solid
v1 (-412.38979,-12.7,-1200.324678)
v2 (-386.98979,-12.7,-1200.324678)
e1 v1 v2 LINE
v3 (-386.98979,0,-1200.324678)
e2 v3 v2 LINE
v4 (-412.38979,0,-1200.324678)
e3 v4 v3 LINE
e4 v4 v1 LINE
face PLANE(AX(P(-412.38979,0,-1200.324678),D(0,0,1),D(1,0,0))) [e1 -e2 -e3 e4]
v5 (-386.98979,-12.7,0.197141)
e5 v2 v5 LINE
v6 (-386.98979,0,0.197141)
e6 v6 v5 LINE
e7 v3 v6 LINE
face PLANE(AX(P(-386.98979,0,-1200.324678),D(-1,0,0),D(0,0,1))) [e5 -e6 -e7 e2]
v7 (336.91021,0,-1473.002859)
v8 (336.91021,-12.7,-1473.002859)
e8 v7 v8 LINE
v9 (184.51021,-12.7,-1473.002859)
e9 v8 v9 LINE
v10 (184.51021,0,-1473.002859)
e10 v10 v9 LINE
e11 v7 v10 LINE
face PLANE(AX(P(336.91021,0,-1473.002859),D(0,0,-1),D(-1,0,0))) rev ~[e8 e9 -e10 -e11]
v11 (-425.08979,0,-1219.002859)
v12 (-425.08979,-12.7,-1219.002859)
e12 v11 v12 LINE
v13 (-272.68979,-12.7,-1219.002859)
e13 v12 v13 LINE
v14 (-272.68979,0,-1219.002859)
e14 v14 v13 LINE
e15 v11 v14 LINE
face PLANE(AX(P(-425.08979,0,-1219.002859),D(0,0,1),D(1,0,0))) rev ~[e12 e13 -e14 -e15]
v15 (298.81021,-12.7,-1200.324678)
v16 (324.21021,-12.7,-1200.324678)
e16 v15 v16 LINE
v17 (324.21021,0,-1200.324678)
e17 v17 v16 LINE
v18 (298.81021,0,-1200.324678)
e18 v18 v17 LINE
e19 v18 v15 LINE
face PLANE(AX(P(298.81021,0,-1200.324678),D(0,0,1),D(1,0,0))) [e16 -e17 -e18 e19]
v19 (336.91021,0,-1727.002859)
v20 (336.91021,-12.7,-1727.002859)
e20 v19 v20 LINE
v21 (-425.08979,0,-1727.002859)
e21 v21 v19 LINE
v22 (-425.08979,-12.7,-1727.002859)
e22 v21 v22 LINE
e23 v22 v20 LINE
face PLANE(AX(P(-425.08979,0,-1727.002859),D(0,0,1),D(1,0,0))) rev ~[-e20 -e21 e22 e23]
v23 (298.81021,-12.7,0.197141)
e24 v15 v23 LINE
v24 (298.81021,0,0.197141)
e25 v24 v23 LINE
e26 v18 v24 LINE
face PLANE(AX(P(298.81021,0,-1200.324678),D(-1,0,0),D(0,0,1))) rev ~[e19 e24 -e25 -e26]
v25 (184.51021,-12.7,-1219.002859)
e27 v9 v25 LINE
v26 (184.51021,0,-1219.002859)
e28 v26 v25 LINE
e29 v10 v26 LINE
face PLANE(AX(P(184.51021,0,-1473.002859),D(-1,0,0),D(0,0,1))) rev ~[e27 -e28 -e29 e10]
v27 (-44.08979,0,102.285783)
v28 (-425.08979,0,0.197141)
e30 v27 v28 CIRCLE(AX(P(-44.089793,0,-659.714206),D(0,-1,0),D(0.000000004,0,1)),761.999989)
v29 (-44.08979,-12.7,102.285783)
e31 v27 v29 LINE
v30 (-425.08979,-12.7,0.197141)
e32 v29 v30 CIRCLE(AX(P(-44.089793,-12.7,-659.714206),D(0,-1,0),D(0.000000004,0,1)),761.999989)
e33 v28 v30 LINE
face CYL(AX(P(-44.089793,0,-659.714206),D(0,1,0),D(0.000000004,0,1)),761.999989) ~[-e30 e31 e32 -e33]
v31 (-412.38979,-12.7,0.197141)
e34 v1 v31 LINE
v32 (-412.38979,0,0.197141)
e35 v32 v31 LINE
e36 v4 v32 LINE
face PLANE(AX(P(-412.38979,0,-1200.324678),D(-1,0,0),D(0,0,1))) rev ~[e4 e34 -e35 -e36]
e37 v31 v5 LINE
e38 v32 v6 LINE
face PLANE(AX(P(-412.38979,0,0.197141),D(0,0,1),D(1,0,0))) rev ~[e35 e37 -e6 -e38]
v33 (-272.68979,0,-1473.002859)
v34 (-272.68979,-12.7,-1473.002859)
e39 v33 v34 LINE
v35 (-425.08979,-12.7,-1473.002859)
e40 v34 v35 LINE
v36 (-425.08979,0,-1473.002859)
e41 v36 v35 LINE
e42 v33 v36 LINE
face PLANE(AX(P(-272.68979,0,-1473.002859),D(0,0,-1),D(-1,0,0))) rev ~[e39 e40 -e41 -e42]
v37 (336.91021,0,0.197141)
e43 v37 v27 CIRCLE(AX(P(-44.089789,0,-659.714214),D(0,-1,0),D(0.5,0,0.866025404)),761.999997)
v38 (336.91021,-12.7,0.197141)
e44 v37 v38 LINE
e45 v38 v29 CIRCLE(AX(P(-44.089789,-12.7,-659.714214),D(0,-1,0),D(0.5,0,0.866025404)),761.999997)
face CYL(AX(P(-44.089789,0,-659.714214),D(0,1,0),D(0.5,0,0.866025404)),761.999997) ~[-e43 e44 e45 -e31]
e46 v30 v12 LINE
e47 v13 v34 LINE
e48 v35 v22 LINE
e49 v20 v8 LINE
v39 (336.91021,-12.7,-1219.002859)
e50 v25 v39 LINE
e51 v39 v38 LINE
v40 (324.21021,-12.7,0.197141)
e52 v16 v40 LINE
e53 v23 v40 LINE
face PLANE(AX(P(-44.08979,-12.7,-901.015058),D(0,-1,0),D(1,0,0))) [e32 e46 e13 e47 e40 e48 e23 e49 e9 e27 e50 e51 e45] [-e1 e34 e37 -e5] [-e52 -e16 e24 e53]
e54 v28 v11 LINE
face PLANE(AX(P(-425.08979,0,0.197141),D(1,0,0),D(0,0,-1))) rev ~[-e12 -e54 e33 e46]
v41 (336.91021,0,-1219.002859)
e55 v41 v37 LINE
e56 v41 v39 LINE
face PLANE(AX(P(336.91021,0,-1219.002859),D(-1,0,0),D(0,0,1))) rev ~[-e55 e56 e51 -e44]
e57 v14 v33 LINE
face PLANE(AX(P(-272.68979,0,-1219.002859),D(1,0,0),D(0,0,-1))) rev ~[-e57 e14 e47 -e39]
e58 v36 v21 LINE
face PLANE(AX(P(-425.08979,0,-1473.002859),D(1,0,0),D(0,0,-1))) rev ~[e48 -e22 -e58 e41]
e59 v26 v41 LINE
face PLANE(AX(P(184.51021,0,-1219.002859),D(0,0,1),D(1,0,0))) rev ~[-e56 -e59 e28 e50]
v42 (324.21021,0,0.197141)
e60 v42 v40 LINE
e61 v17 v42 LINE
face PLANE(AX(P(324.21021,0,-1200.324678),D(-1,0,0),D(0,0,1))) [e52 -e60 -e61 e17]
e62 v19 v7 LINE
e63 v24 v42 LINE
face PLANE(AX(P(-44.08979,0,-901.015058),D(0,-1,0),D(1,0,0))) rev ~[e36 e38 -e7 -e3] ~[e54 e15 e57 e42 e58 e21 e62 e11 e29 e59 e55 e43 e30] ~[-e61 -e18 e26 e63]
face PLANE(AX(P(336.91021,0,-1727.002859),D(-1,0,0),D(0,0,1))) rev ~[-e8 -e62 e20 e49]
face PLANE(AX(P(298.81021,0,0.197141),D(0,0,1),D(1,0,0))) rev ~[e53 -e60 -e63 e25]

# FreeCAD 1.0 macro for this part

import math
import FreeCAD as App
import Part
import Sketcher
from FreeCAD import Vector
Q = App.Units.Quantity

doc = App.newDocument("Part")
body = doc.addObject("PartDesign::Body", "Body")

# Sketch on XZ plane
sketch1 = body.newObject("Sketcher::SketchObject", "Sketch")
sketch1.AttachmentSupport = (doc.getObject("XZ_Plane"), [""])
sketch1.MapMode = "FlatFace"
sketch1.addGeometry([
    Part.LineSegment(Vector(337, -1219, 0), Vector(337, 0, 0)),  # 0
    Part.ArcOfCircle(Part.Circle(Vector(-44, -660, 0), Vector(0, 0, 1), 762), math.radians(60), math.radians(90)),  # 1
    Part.ArcOfCircle(Part.Circle(Vector(-44, -660, 0), Vector(0, 0, 1), 762), math.radians(90), math.radians(120)),  # 2
    Part.LineSegment(Vector(-425, 0, 0), Vector(-425, -1219, 0)),  # 3
    Part.LineSegment(Vector(-425, -1219, 0), Vector(-273, -1219, 0)),  # 4
    Part.LineSegment(Vector(-273, -1219, 0), Vector(-273, -1473, 0)),  # 5
    Part.LineSegment(Vector(-273, -1473, 0), Vector(-425, -1473, 0)),  # 6
    Part.LineSegment(Vector(-425, -1473, 0), Vector(-425, -1727, 0)),  # 7
    Part.LineSegment(Vector(-425, -1727, 0), Vector(337, -1727, 0)),  # 8
    Part.LineSegment(Vector(337, -1727, 0), Vector(337, -1473, 0)),  # 9
    Part.LineSegment(Vector(337, -1473, 0), Vector(185, -1473, 0)),  # 10
    Part.LineSegment(Vector(185, -1473, 0), Vector(185, -1219, 0)),  # 11
    Part.LineSegment(Vector(185, -1219, 0), Vector(337, -1219, 0)),  # 12
    Part.LineSegment(Vector(-387, -1200, 0), Vector(-412, -1200, 0)),  # 13
    Part.LineSegment(Vector(-412, -1200, 0), Vector(-412, 0, 0)),  # 14
    Part.LineSegment(Vector(-412, 0, 0), Vector(-387, 0, 0)),  # 15
    Part.LineSegment(Vector(-387, 0, 0), Vector(-387, -1200, 0)),  # 16
    Part.LineSegment(Vector(324, -1200, 0), Vector(299, -1200, 0)),  # 17
    Part.LineSegment(Vector(299, -1200, 0), Vector(299, 0, 0)),  # 18
    Part.LineSegment(Vector(299, 0, 0), Vector(324, 0, 0)),  # 19
    Part.LineSegment(Vector(324, 0, 0), Vector(324, -1200, 0)),  # 20
], False)
sketch1.addConstraint([
    Sketcher.Constraint("Coincident", 0, 2, 1, 1),
    Sketcher.Constraint("Coincident", 1, 2, 2, 1),
    Sketcher.Constraint("Coincident", 2, 2, 3, 1),
    Sketcher.Constraint("Coincident", 3, 2, 4, 1),
    Sketcher.Constraint("Coincident", 4, 2, 5, 1),
    Sketcher.Constraint("Coincident", 5, 2, 6, 1),
    Sketcher.Constraint("Coincident", 6, 2, 7, 1),
    Sketcher.Constraint("Coincident", 7, 2, 8, 1),
    Sketcher.Constraint("Coincident", 8, 2, 9, 1),
    Sketcher.Constraint("Coincident", 9, 2, 10, 1),
    Sketcher.Constraint("Coincident", 10, 2, 11, 1),
    Sketcher.Constraint("Coincident", 11, 2, 12, 1),
    Sketcher.Constraint("Coincident", 12, 2, 0, 1),
    Sketcher.Constraint("Coincident", 13, 2, 14, 1),
    Sketcher.Constraint("Coincident", 14, 2, 15, 1),
    Sketcher.Constraint("Coincident", 15, 2, 16, 1),
    Sketcher.Constraint("Coincident", 16, 2, 13, 1),
    Sketcher.Constraint("Coincident", 17, 2, 18, 1),
    Sketcher.Constraint("Coincident", 18, 2, 19, 1),
    Sketcher.Constraint("Coincident", 19, 2, 20, 1),
    Sketcher.Constraint("Coincident", 20, 2, 17, 1),
    Sketcher.Constraint("Vertical", 0),
    Sketcher.Constraint("Vertical", 3),
    Sketcher.Constraint("Horizontal", 4),
    Sketcher.Constraint("Vertical", 5),
    Sketcher.Constraint("Horizontal", 6),
    Sketcher.Constraint("Vertical", 7),
    Sketcher.Constraint("Horizontal", 8),
    Sketcher.Constraint("Vertical", 9),
    Sketcher.Constraint("Horizontal", 10),
    Sketcher.Constraint("Vertical", 11),
    Sketcher.Constraint("Horizontal", 12),
    Sketcher.Constraint("Horizontal", 13),
    Sketcher.Constraint("Vertical", 14),
    Sketcher.Constraint("Horizontal", 15),
    Sketcher.Constraint("Vertical", 16),
    Sketcher.Constraint("Horizontal", 17),
    Sketcher.Constraint("Vertical", 18),
    Sketcher.Constraint("Horizontal", 19),
    Sketcher.Constraint("Vertical", 20),
    Sketcher.Constraint("Coincident", 2, 3, 1, 3),
    Sketcher.Constraint("Horizontal", 0, 2, 2, 2),
    Sketcher.Constraint("Horizontal", 6, 2, 9, 2),
    Sketcher.Constraint("Horizontal", 4, 2, 11, 2),
    Sketcher.Constraint("Horizontal", 2, 2, 14, 2),
    Sketcher.Constraint("Horizontal", 16, 2, 17, 2),
    Sketcher.Constraint("Horizontal", 15, 2, 18, 2),
    Sketcher.Constraint("Vertical", 3, 2, 6, 2),
    Sketcher.Constraint("Vertical", 0, 2, 8, 2),
    Sketcher.Constraint("Equal", 6, 10),
    Sketcher.Constraint("Equal", 15, 17),
    Sketcher.Constraint("Equal", 5, 7),
    Sketcher.Constraint("Radius", 1, Q("29.9999999 in")),
    Sketcher.Constraint("DistanceX", 4, 1, 4, 2, Q("6 in")),
    Sketcher.Constraint("DistanceX", 8, 1, 8, 2, Q("30 in")),
    Sketcher.Constraint("DistanceX", 13, 2, 13, 1, Q("1 in")),
    Sketcher.Constraint("DistanceY", 0, 1, 0, 2, Q("48 in")),
    Sketcher.Constraint("DistanceY", 5, 2, 5, 1, Q("10 in")),
    Sketcher.Constraint("DistanceX", 1, 2, 0, 2, Q("15 in")),
    Sketcher.Constraint("DistanceX", 15, 2, 18, 2, Q("27 in")),
    Sketcher.Constraint("DistanceX", 3, 2, 13, 2, Q("0.5 in")),
    Sketcher.Constraint("DistanceY", 14, 1, 14, 2, 1200.521819),
    Sketcher.Constraint("DistanceX", 1, 3, -1, 1, 44.089789),
    Sketcher.Constraint("DistanceY", -1, 1, 0, 2, 0.197141),
])
pad1 = body.newObject("PartDesign::Pad", "Pad")
pad1.Profile = sketch1
pad1.Length = Q("0.5 in")

doc.recompute()
